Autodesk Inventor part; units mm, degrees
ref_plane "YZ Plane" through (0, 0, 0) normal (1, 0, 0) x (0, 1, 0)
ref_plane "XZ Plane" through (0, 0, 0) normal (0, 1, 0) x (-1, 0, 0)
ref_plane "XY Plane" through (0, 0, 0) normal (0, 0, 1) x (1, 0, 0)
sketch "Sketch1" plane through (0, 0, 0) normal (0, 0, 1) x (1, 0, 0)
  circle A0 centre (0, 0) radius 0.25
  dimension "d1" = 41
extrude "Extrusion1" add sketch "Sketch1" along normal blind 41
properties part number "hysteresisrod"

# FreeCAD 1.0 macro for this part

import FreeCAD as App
import Part
import Sketcher

doc = App.newDocument("Part")
body = doc.addObject("PartDesign::Body", "Body")

# Sketch on XY plane
sketch1 = body.newObject("Sketcher::SketchObject", "Sketch")
sketch1.AttachmentSupport = (doc.getObject("XY_Plane"), [""])
sketch1.MapMode = "FlatFace"
sketch1.addGeometry(Part.Circle(App.Vector(0, 0, 0), App.Vector(0, 0, 1), 0.25), False)
sketch1.addConstraint([
    Sketcher.Constraint("Coincident", 0, 3, -1, 1),
    Sketcher.Constraint("Diameter", 0, 0.5),
])
pad1 = body.newObject("PartDesign::Pad", "Pad")
pad1.Profile = sketch1
pad1.Length = 41

doc.recompute()
